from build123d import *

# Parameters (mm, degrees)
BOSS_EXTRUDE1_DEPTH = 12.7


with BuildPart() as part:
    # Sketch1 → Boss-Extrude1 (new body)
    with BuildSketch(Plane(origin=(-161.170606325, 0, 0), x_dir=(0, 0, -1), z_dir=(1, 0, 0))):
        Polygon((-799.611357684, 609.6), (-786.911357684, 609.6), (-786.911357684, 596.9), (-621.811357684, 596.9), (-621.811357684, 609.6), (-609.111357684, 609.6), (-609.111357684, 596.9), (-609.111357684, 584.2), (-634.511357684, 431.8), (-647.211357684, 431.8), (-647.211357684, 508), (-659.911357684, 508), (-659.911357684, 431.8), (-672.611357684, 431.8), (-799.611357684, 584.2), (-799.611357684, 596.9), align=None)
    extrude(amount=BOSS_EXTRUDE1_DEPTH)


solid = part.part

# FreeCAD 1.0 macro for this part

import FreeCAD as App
import Part
import Sketcher

V = App.Vector
Q = App.Units.Quantity


def add_polygon(sketch, points):
    """Adds a closed chain of lines whose ends are joined by coincident constraints."""
    first, n = sketch.GeometryCount, len(points)
    for a, b in zip(points, points[1:] + points[:1]):
        sketch.addGeometry(Part.LineSegment(App.Vector(*a, 0), App.Vector(*b, 0)), False)
    for i in range(n):
        sketch.addConstraint(Sketcher.Constraint("Coincident", first + i, 2, first + (i + 1) % n, 1))

doc = App.newDocument("Part")
body = doc.addObject("PartDesign::Body", "Body")

sketch1 = body.newObject("Sketcher::SketchObject", "Sketch")
sketch1.AttachmentSupport = (doc.getObject("YZ_Plane"), [""])
sketch1.MapMode = "FlatFace"
sketch1.AttachmentOffset = App.Placement(V(0, 0, -161.170606), App.Rotation())
add_polygon(sketch1, [(610, 787), (610, 800), (584, 800), (432, 673), (432, 660), (508, 660), (508, 647), (432, 647), (432, 635), (584, 609), (610, 609), (610, 622), (597, 622), (597, 787)])
sketch1.addConstraint([
    Sketcher.Constraint("Vertical", 0),
    Sketcher.Constraint("Horizontal", 1),
    Sketcher.Constraint("Vertical", 3),
    Sketcher.Constraint("Horizontal", 4),
    Sketcher.Constraint("Vertical", 5),
    Sketcher.Constraint("Horizontal", 6),
    Sketcher.Constraint("Vertical", 7),
    Sketcher.Constraint("Horizontal", 9),
    Sketcher.Constraint("Vertical", 10),
    Sketcher.Constraint("Horizontal", 11),
    Sketcher.Constraint("Vertical", 12),
    Sketcher.Constraint("Horizontal", 13),
    Sketcher.Constraint("Vertical", 3, 2, 6, 2),
    Sketcher.Constraint("Vertical", 1, 2, 8, 2),
    Sketcher.Constraint("Vertical", 0, 2, 9, 2),
    Sketcher.Constraint("Equal", 13, 0),
    Sketcher.Constraint("Equal", 0, 3),
    Sketcher.Constraint("Equal", 3, 5),
    Sketcher.Constraint("Equal", 5, 7),
    Sketcher.Constraint("Equal", 7, 10),
    Sketcher.Constraint("DistanceX", 1, 2, 1, 1, Q("1 in")),
    Sketcher.Constraint("DistanceX", 4, 1, 4, 2, Q("3 in")),
    Sketcher.Constraint("DistanceX", 11, 2, 11, 1, Q("0.5 in")),
    Sketcher.Constraint("DistanceY", 12, 1, 12, 2, Q("6.5 in")),
    Sketcher.Constraint("DistanceX", -1, 1, 0, 2, Q("24 in")),
    Sketcher.Constraint("DistanceX", -1, 1, 2, 2, Q("17 in")),
    Sketcher.Constraint("DistanceY", 2, 2, 1, 2, Q("5 in")),
    Sketcher.Constraint("DistanceY", -1, 1, 0, 2, 799.611358),
])
pad1 = body.newObject("PartDesign::Pad", "Pad")
pad1.Profile = sketch1
pad1.Length = Q("0.5 in")

doc.recompute()
